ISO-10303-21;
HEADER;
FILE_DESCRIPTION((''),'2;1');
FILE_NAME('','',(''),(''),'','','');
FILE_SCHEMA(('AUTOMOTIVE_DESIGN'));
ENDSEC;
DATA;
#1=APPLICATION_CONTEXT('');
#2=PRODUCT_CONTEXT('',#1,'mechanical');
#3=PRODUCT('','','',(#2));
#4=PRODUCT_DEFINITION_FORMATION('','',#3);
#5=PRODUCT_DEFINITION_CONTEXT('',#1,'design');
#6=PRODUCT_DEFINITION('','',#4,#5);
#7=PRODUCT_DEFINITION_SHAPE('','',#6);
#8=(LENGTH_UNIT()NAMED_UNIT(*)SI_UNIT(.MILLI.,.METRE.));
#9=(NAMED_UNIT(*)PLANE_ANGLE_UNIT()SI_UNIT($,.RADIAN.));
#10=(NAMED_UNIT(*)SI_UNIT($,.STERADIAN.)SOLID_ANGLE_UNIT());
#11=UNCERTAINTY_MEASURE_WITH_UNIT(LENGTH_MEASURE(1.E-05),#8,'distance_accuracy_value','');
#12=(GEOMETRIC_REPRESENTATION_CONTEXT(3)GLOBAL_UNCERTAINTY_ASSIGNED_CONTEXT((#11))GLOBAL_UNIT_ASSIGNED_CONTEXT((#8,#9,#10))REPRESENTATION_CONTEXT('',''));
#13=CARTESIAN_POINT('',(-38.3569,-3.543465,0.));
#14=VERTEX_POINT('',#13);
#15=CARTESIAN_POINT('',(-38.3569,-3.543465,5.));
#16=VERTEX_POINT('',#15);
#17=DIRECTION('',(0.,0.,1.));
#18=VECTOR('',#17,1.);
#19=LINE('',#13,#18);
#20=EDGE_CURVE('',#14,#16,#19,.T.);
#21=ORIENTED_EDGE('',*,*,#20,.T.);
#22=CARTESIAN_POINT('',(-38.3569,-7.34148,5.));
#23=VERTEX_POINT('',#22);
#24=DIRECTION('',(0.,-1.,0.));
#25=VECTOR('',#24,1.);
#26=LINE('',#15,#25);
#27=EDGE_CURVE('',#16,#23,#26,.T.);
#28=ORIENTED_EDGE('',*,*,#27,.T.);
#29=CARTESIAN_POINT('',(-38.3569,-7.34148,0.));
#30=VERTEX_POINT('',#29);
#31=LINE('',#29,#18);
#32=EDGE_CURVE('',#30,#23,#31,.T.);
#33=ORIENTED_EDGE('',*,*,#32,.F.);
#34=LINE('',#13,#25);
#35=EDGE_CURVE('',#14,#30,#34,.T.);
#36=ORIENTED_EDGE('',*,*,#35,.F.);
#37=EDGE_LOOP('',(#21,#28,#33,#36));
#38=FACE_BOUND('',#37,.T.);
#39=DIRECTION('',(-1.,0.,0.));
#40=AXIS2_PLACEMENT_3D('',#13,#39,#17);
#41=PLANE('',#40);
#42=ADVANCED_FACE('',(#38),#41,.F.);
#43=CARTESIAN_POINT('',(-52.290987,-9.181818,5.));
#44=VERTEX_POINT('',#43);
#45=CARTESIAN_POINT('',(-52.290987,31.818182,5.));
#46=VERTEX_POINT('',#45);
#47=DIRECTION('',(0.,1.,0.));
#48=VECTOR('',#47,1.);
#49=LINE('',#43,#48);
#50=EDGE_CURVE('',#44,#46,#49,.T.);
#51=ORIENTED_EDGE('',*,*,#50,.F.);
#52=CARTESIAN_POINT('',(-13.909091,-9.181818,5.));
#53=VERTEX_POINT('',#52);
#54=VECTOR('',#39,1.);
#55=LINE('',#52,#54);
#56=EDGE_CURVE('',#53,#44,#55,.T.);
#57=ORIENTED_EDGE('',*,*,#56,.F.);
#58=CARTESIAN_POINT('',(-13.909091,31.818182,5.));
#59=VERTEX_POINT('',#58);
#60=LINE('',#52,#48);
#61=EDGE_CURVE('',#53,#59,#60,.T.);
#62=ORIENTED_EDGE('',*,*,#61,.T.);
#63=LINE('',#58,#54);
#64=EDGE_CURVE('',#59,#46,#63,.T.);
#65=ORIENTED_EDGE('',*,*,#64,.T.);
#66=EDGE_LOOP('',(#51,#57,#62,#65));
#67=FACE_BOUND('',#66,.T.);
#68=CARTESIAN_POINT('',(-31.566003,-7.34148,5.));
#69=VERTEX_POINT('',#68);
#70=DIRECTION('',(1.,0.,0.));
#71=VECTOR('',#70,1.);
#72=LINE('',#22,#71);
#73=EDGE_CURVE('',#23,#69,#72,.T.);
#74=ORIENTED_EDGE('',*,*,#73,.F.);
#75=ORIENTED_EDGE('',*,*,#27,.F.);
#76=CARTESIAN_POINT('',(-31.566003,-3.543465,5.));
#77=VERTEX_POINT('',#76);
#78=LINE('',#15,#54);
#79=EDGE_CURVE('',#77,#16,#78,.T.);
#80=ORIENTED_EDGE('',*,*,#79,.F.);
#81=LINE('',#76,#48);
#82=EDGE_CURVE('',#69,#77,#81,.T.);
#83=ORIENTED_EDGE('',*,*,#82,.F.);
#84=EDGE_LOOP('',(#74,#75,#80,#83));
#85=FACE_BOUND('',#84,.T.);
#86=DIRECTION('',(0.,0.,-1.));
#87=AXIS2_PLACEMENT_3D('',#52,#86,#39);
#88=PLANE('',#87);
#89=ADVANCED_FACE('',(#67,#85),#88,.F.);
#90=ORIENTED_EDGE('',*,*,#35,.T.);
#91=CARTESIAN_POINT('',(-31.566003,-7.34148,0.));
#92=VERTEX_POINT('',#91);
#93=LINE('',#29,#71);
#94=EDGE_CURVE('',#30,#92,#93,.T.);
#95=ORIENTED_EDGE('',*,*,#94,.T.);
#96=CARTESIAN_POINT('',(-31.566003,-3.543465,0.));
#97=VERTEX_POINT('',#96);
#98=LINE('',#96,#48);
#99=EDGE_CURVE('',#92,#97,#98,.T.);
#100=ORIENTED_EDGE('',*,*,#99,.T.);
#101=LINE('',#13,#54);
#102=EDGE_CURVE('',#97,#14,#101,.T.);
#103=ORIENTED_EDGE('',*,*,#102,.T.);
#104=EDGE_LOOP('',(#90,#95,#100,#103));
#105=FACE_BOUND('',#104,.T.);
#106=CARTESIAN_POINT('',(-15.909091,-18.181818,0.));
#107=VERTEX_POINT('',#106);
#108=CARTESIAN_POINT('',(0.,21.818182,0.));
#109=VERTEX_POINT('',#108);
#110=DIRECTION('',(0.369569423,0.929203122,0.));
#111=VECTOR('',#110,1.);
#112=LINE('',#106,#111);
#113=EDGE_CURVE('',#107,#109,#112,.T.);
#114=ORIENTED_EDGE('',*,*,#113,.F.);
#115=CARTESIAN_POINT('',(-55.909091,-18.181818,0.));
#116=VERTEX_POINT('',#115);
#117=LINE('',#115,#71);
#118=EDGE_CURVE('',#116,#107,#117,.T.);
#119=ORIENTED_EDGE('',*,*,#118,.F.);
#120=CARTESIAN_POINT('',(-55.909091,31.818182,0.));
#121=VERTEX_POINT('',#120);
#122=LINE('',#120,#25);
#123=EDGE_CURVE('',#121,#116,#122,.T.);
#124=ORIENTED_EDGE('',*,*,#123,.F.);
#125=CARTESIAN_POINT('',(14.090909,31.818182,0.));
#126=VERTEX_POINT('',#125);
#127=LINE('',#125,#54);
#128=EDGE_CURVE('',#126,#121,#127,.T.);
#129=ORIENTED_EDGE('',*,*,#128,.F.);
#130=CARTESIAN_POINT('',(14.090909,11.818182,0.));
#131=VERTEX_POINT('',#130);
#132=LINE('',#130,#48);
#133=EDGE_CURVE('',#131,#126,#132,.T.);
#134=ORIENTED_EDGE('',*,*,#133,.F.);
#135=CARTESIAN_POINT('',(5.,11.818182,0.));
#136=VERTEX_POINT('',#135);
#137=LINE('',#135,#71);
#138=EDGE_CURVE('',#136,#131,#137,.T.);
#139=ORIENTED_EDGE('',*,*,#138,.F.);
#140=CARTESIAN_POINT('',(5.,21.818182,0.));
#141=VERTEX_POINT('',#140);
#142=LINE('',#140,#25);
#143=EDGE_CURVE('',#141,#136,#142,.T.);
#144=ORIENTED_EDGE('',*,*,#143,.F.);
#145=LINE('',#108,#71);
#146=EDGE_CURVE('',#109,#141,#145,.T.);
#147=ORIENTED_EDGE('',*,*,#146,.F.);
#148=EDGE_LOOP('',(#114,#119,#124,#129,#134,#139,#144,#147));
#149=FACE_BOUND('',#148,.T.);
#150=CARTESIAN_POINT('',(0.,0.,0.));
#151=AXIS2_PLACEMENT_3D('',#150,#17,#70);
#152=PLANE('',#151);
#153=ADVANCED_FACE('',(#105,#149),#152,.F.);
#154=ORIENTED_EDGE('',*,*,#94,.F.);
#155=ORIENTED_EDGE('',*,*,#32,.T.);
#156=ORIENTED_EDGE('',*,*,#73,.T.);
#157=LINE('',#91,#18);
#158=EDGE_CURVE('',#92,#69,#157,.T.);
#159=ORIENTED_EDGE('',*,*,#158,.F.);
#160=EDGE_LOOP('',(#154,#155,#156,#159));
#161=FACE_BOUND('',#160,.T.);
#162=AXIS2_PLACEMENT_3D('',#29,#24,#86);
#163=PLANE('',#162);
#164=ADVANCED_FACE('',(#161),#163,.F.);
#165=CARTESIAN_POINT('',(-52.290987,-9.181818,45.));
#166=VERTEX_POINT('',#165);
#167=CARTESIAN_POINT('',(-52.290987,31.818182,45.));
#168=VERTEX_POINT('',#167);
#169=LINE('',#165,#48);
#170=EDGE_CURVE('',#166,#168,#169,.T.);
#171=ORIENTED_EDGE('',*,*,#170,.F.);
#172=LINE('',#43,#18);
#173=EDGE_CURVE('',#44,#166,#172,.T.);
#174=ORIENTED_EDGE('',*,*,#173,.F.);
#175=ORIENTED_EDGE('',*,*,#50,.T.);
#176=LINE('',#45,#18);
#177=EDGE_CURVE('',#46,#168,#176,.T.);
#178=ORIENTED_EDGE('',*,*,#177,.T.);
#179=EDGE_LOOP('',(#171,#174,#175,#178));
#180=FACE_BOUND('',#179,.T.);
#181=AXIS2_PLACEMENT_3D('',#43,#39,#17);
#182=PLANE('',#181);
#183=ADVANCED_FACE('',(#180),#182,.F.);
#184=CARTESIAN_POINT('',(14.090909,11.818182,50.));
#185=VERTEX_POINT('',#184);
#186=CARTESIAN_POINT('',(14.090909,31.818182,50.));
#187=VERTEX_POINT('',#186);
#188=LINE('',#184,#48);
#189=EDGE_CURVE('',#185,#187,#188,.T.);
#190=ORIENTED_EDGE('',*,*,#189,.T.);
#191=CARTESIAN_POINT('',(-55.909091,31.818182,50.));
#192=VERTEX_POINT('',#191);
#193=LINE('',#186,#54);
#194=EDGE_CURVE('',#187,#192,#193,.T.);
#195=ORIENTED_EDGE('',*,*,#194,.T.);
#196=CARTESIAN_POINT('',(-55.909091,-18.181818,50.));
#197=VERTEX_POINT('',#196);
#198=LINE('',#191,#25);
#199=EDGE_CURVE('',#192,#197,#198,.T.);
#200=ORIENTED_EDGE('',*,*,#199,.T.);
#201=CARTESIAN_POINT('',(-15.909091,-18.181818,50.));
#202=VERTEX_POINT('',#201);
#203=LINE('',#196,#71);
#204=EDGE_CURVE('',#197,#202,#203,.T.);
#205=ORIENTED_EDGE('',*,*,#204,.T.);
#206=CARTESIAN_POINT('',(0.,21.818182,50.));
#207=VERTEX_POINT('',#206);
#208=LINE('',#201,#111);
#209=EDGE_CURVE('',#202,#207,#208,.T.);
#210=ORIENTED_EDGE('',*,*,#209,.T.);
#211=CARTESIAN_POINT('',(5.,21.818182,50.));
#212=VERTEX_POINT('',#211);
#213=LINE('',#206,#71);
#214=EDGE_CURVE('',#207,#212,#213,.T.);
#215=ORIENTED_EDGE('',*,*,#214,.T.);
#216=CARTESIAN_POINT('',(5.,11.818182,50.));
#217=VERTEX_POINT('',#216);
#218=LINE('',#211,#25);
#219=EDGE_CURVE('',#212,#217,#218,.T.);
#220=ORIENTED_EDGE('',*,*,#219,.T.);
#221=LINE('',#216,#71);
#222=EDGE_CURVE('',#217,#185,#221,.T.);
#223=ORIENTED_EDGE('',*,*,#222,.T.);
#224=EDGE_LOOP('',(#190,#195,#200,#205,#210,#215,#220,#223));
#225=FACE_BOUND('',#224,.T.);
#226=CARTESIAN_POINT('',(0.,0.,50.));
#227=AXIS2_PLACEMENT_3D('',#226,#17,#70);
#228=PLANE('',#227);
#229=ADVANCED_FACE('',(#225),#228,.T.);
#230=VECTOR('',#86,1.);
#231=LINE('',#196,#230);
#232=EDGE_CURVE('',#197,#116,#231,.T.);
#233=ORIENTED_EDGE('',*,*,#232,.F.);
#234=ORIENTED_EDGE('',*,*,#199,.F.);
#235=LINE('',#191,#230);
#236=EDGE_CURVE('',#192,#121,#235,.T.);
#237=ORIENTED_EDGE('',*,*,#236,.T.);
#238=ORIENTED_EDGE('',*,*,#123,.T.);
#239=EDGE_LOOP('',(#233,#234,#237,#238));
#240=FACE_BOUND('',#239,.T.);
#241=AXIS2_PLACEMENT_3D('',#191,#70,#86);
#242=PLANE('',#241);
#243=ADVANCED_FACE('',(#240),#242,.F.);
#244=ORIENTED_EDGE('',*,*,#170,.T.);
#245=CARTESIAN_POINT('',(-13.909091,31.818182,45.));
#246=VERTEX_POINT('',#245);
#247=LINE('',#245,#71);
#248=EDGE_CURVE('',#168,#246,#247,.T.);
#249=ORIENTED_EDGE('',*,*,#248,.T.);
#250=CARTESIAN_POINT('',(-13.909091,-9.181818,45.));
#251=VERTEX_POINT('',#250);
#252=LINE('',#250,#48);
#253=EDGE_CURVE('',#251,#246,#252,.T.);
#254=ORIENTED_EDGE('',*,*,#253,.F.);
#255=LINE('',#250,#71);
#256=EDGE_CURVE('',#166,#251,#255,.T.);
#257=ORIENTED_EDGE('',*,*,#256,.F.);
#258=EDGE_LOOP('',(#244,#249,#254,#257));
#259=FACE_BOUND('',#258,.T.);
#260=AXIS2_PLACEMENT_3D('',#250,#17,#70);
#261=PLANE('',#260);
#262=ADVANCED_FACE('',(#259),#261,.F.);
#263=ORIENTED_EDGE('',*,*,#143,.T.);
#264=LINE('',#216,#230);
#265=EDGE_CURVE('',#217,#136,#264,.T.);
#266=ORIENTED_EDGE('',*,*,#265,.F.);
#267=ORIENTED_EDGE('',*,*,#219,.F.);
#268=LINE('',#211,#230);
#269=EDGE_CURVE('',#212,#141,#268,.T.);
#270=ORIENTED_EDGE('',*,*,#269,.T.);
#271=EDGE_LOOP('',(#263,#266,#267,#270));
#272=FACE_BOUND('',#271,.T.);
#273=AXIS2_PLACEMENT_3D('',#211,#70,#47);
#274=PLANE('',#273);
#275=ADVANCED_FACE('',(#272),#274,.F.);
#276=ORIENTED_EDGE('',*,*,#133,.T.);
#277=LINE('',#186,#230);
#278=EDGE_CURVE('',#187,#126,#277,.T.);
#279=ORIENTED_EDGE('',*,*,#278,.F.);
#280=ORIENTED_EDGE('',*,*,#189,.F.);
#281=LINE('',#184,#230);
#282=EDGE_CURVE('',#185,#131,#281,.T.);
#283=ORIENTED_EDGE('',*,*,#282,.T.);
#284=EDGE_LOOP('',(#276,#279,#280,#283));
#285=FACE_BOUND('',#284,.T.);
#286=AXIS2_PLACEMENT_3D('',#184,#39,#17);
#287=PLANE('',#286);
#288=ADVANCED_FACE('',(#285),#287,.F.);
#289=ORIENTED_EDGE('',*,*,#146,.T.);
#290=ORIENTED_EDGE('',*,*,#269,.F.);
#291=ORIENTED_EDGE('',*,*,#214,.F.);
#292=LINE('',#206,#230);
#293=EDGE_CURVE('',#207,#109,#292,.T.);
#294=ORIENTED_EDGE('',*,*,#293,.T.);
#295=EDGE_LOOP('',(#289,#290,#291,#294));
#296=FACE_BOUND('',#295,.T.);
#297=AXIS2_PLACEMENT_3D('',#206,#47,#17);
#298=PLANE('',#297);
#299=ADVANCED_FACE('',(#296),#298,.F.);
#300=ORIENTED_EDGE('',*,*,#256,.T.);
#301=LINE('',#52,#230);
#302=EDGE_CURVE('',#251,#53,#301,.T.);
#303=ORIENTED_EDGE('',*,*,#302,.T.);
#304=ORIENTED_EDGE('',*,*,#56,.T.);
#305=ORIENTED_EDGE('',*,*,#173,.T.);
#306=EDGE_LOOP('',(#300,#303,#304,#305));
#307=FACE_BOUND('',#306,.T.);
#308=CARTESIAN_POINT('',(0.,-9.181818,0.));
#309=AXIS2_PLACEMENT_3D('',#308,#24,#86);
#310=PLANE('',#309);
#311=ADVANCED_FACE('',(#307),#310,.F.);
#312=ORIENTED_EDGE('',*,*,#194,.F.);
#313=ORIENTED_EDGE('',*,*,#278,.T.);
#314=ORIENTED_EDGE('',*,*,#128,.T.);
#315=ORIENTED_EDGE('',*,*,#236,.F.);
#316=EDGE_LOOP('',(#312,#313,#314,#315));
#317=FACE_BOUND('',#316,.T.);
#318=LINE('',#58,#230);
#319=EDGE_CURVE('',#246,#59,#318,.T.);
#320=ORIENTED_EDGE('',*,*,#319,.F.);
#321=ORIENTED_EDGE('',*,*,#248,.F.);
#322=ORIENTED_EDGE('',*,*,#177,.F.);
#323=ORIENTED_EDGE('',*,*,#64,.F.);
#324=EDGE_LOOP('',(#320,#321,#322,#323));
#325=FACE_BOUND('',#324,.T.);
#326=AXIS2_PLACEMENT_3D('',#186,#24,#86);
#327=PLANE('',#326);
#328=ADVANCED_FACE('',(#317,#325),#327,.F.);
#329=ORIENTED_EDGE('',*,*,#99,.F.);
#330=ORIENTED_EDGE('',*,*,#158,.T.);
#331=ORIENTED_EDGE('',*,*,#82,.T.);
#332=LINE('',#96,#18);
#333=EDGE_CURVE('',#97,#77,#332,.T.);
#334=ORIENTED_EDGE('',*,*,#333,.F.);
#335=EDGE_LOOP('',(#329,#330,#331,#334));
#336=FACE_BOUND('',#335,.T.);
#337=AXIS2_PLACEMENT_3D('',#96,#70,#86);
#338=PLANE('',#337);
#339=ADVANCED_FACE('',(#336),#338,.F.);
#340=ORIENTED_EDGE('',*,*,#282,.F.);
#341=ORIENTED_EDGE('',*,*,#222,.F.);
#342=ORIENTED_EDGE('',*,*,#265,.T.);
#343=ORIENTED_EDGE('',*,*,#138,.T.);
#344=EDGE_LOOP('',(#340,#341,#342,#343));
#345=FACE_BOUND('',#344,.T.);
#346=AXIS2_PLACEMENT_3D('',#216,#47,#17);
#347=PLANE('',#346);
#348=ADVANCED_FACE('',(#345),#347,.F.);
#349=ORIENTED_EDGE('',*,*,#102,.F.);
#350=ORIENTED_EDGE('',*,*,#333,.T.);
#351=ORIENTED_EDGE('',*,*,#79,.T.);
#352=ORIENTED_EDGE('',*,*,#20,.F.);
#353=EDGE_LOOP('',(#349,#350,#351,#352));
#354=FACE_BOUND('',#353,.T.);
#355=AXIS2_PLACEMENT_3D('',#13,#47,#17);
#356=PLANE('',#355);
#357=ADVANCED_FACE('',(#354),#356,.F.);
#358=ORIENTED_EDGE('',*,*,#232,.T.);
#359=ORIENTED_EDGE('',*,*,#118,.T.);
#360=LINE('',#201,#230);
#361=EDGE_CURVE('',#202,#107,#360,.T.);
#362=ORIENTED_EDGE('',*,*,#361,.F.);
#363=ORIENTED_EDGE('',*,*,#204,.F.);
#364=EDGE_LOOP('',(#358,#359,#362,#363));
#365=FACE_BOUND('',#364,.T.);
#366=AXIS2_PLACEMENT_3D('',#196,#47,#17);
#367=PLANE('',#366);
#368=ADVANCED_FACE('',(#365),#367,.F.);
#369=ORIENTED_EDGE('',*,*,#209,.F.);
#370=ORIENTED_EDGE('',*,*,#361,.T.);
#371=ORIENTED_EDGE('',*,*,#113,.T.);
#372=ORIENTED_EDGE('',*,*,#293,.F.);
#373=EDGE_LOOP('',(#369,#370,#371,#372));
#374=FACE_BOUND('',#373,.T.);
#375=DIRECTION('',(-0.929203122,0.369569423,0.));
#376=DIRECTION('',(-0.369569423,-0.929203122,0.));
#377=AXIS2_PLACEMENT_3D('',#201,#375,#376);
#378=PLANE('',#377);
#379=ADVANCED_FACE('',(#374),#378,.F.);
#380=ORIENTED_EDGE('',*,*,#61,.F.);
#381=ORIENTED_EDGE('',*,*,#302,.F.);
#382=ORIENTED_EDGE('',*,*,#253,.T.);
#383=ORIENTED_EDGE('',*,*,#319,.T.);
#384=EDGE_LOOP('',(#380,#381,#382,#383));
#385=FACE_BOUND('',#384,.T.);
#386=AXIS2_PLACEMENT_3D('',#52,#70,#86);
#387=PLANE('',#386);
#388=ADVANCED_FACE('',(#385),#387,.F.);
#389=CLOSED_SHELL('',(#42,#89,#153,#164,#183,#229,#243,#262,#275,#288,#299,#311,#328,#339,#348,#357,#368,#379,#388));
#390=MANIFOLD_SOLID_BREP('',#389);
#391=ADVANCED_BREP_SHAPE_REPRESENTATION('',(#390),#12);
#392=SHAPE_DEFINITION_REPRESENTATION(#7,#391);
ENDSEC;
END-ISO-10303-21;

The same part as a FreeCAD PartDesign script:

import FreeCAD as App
import Part
import Sketcher

V = App.Vector


def add_polygon(sketch, points):
    """Adds a closed chain of lines whose ends are joined by coincident constraints."""
    first, n = sketch.GeometryCount, len(points)
    for a, b in zip(points, points[1:] + points[:1]):
        sketch.addGeometry(Part.LineSegment(App.Vector(*a, 0), App.Vector(*b, 0)), False)
    for i in range(n):
        sketch.addConstraint(Sketcher.Constraint("Coincident", first + i, 2, first + (i + 1) % n, 1))

doc = App.newDocument("Part")
body = doc.addObject("PartDesign::Body", "Body")

# Sketch on XY plane
sketch1 = doc.addObject("Sketcher::SketchObject", "Sketch")
body.addObject(sketch1)
sketch1.AttachmentSupport = (doc.XY_Plane, [""])
sketch1.MapMode = "FlatFace"
add_polygon(sketch1, [(-55.909091, 31.818182), (-55.909091, -18.181818), (-15.909091, -18.181818), (0, 21.818182), (5, 21.818182), (5, 11.818182), (14.090909, 11.818182), (14.090909, 31.818182)])  # lines 0-7
sketch1.addConstraint([
    Sketcher.Constraint("Vertical", 0),
    Sketcher.Constraint("Horizontal", 1),
    Sketcher.Constraint("Horizontal", 3),
    Sketcher.Constraint("Vertical", 4),
    Sketcher.Constraint("Horizontal", 5),
    Sketcher.Constraint("Vertical", 6),
    Sketcher.Constraint("Horizontal", 7),
    Sketcher.Constraint("PointOnObject", 2, 2, -2),
    Sketcher.Constraint("DistanceX", 1, 1, 1, 2, 40.0),
    Sketcher.Constraint("DistanceX", 3, 1, 3, 2, 5.0),
    Sketcher.Constraint("DistanceX", 7, 2, 7, 1, 70.0),
    Sketcher.Constraint("DistanceY", 0, 2, 0, 1, 50.0),
    Sketcher.Constraint("DistanceY", 4, 2, 4, 1, 10.0),
    Sketcher.Constraint("DistanceY", 6, 1, 6, 2, 20.0),
    Sketcher.Constraint("DistanceX", 5, 1, 5, 2, 9.090909),
    Sketcher.Constraint("DistanceY", 0, 2, -1, 1, 18.181818),
])
pad1 = doc.addObject("PartDesign::Pad", "Pad")
body.addObject(pad1)
pad1.Profile = sketch1
pad1.Length = 50

# Sketch on XZ plane
sketch2 = doc.addObject("Sketcher::SketchObject", "Sketch001")
body.addObject(sketch2)
sketch2.AttachmentSupport = (doc.XZ_Plane, [""])
sketch2.MapMode = "FlatFace"
sketch2.AttachmentOffset = App.Placement(V(0, 0, -31.818182), App.Rotation())
add_polygon(sketch2, [(-52.290987, 5), (-52.290987, 45), (-13.909091, 45), (-13.909091, 5)])  # lines 0-3
sketch2.addConstraint([
    Sketcher.Constraint("Vertical", 0),
    Sketcher.Constraint("Horizontal", 1),
    Sketcher.Constraint("Vertical", 2),
    Sketcher.Constraint("Horizontal", 3),
    Sketcher.Constraint("DistanceY", 0, 1, 0, 2, 40.0),
    Sketcher.Constraint("DistanceY", -1, 1, 0, 2, 45.0),
    Sketcher.Constraint("DistanceX", 1, 1, 1, 2, 38.381896),
    Sketcher.Constraint("DistanceX", 1, 2, -1, 1, 13.909091),
])
pocket1 = doc.addObject("PartDesign::Pocket", "Pocket")
body.addObject(pocket1)
pocket1.Profile = sketch2
pocket1.Length = 41
pocket1.Reversed = True

# Sketch on XY plane
sketch3 = doc.addObject("Sketcher::SketchObject", "Sketch002")
body.addObject(sketch3)
sketch3.AttachmentSupport = (doc.XY_Plane, [""])
sketch3.MapMode = "FlatFace"
sketch3.AttachmentOffset = App.Placement(V(0, 0, 5), App.Rotation())
add_polygon(sketch3, [(-38.3569, -3.543465), (-38.3569, -7.34148), (-31.566003, -7.34148), (-31.566003, -3.543465)])  # lines 0-3
sketch3.addConstraint([
    Sketcher.Constraint("Vertical", 0),
    Sketcher.Constraint("Horizontal", 1),
    Sketcher.Constraint("Vertical", 2),
    Sketcher.Constraint("Horizontal", 3),
    Sketcher.Constraint("DistanceX", 0, 2, -1, 1, 38.3569),
    Sketcher.Constraint("DistanceX", 1, 1, 1, 2, 6.790896),
    Sketcher.Constraint("DistanceY", 0, 2, 0, 1, 3.798015),
    Sketcher.Constraint("DistanceY", 0, 2, -1, 1, 7.34148),
])
pocket2 = doc.addObject("PartDesign::Pocket", "Pocket001")
body.addObject(pocket2)
pocket2.Profile = sketch3
pocket2.Length = 5

doc.recompute()
